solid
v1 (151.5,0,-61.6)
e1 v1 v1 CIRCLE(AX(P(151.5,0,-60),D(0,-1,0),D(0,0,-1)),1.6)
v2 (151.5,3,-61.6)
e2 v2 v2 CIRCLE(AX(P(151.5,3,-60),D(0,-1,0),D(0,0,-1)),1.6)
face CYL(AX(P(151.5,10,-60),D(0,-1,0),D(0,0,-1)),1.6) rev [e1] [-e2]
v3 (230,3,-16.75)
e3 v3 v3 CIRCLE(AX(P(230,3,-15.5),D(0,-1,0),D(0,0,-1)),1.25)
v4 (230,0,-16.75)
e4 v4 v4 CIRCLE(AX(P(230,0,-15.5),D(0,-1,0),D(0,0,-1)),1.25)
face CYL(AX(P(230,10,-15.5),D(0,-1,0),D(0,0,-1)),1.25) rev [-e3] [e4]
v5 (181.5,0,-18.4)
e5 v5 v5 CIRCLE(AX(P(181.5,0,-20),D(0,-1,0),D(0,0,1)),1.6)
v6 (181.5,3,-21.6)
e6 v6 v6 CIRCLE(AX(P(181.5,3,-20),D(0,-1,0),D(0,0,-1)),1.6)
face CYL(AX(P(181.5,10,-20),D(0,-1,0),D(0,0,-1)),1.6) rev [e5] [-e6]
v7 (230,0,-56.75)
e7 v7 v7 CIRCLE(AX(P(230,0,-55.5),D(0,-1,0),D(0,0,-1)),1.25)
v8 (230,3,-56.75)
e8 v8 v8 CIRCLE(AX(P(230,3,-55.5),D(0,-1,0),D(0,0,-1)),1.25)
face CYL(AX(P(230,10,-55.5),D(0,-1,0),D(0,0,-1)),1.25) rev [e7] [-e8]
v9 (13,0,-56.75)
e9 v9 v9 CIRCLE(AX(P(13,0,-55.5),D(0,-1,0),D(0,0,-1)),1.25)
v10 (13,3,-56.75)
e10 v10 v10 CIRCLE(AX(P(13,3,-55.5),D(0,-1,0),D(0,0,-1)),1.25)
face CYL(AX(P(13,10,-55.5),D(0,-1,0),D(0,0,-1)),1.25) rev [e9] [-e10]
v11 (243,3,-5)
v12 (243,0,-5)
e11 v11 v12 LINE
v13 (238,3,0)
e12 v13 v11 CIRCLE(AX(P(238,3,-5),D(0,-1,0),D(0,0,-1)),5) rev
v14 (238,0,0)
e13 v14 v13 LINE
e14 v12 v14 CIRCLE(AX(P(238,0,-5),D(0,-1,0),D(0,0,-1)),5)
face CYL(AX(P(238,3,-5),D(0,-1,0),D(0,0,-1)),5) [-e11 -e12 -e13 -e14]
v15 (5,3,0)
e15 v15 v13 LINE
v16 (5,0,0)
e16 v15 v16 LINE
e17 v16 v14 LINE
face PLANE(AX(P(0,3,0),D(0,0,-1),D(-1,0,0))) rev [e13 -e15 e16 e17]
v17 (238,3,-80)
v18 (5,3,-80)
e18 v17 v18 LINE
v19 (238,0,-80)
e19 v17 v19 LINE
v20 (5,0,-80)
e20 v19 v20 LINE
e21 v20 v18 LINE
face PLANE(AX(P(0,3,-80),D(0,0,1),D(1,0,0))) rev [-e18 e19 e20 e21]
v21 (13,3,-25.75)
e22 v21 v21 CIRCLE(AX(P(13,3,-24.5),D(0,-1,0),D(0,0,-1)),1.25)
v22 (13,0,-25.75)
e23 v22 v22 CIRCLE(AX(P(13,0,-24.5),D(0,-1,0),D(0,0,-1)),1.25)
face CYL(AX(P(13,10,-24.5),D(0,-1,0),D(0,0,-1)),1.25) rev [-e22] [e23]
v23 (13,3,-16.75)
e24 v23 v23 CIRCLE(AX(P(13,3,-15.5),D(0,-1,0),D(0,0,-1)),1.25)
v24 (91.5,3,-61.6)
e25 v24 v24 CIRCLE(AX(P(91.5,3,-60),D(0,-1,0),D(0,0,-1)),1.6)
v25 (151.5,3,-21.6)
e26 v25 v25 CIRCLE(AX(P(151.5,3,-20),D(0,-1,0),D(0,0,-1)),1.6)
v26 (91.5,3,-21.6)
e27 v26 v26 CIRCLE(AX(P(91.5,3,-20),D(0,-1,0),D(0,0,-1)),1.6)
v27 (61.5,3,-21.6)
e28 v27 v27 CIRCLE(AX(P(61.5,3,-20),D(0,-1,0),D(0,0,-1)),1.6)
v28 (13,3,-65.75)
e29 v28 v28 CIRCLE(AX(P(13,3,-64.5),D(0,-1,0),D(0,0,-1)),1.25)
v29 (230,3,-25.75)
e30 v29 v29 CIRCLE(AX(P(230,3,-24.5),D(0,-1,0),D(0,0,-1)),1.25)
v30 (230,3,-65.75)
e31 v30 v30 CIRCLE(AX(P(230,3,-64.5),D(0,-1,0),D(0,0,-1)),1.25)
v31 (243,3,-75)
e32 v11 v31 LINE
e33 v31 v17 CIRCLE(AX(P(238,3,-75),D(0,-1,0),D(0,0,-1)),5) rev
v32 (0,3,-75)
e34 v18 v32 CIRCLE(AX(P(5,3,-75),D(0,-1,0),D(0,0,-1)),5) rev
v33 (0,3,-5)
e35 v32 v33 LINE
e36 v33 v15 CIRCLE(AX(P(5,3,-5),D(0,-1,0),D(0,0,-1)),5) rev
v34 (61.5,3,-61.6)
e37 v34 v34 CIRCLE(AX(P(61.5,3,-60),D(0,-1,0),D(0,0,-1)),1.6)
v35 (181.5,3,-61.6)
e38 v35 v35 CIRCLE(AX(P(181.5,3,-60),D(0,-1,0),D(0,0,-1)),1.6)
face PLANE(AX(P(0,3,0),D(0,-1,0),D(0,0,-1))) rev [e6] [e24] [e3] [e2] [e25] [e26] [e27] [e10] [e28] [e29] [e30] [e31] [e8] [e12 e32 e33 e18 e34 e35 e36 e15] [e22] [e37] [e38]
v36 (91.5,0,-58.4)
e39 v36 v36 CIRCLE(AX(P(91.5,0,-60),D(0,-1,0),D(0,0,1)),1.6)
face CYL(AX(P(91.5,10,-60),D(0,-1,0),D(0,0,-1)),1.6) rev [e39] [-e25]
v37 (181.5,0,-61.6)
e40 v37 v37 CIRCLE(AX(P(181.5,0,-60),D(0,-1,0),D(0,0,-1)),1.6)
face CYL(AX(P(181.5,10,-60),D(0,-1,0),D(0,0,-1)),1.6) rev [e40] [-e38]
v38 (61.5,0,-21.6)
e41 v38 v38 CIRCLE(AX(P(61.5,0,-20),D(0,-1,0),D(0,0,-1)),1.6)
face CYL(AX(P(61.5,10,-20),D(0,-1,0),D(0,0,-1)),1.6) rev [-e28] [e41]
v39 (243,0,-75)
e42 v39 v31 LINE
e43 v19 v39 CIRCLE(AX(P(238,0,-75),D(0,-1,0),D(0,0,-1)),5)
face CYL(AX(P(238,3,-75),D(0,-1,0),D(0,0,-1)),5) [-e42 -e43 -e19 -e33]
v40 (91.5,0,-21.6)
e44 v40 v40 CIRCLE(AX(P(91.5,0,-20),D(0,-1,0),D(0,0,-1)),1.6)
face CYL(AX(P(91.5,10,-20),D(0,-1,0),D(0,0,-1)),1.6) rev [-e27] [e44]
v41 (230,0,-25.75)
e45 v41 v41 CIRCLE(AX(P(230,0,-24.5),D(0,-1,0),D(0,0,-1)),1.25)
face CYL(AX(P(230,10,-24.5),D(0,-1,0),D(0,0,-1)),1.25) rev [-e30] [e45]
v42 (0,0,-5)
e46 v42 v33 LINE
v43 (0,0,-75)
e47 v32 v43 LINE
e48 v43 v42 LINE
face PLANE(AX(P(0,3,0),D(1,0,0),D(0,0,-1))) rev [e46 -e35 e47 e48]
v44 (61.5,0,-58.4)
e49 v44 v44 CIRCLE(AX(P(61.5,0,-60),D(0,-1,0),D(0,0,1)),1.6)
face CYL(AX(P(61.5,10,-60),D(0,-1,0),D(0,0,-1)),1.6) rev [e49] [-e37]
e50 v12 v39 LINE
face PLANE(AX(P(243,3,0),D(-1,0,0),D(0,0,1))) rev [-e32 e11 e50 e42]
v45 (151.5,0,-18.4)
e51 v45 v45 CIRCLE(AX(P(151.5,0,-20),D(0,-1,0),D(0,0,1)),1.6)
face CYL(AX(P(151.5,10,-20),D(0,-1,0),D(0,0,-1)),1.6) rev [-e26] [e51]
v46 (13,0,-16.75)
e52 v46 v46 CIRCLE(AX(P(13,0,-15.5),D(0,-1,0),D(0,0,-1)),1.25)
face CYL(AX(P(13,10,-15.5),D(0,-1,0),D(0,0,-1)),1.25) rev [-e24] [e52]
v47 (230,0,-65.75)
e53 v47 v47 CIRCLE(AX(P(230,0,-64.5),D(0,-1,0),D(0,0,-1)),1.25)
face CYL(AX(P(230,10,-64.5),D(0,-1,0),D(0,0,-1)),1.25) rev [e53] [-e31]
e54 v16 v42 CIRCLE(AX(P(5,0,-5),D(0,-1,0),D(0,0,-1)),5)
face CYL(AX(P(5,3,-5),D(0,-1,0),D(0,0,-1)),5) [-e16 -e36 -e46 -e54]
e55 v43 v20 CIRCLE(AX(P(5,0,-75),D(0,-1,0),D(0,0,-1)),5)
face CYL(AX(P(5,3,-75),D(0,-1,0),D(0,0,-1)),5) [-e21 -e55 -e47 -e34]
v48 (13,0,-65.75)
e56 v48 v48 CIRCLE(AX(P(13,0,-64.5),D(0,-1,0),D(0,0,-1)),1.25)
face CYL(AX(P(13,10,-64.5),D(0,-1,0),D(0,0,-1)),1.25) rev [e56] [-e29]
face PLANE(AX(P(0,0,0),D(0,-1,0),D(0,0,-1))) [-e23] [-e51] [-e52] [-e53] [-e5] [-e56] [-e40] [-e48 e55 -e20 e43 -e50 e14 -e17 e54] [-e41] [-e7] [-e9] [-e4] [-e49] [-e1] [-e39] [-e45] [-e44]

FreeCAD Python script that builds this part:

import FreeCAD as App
import Part
import Sketcher

V = App.Vector
Q = App.Units.Quantity


def edges_at(feature, points):
    """Names of the edges that pass closest to the given points."""
    edges = feature.Shape.Edges
    near = lambda p: min(range(len(edges)), key=lambda i: edges[i].distToShape(Part.Vertex(*p))[0])
    return sorted({f"Edge{near(p) + 1}" for p in points})


def add_polygon(sketch, points):
    """Adds a closed chain of lines whose ends are joined by coincident constraints."""
    first, n = sketch.GeometryCount, len(points)
    for a, b in zip(points, points[1:] + points[:1]):
        sketch.addGeometry(Part.LineSegment(App.Vector(*a, 0), App.Vector(*b, 0)), False)
    for i in range(n):
        sketch.addConstraint(Sketcher.Constraint("Coincident", first + i, 2, first + (i + 1) % n, 1))

doc = App.newDocument("Part")
body = doc.addObject("PartDesign::Body", "Body")

# Sketch on XZ plane
sketch1 = doc.addObject("Sketcher::SketchObject", "Sketch")
body.addObject(sketch1)
sketch1.AttachmentSupport = (doc.XZ_Plane, [""])
sketch1.MapMode = "FlatFace"
add_polygon(sketch1, [(0, -80), (0, 0), (243, 0), (243, -80)])  # lines 0-3
sketch1.addConstraint(Sketcher.Constraint("Vertical", 0))
sketch1.addConstraint(Sketcher.Constraint("Horizontal", 1))
sketch1.addConstraint(Sketcher.Constraint("Vertical", 2))
sketch1.addConstraint(Sketcher.Constraint("Horizontal", 3))
sketch1.addConstraint(Sketcher.Constraint("Coincident", 0, 2, -1, 1))
sketch1.addConstraint(Sketcher.Constraint("DistanceX", 1, 1, 1, 2, Q("243 mm")))
sketch1.addConstraint(Sketcher.Constraint("DistanceY", 0, 1, 0, 2, Q("80 mm")))
pad1 = doc.addObject("PartDesign::Pad", "Pad")
body.addObject(pad1)
pad1.Profile = sketch1
pad1.Length = 3
pad1.Reversed = True

# Sketch on XZ plane
sketch2 = doc.addObject("Sketcher::SketchObject", "Sketch001")
body.addObject(sketch2)
sketch2.AttachmentSupport = (doc.XZ_Plane, [""])
sketch2.MapMode = "FlatFace"
sketch2.addGeometry(Part.Circle(V(13, -64.5, 0), V(0, 0, 1), 1.2), False)
sketch2.addGeometry(Part.Circle(V(13, -55.5, 0), V(0, 0, 1), 1.2), False)
sketch2.addGeometry(Part.Circle(V(13, -24.5, 0), V(0, 0, 1), 1.2), False)
sketch2.addGeometry(Part.Circle(V(13, -15.5, 0), V(0, 0, 1), 1.2), False)
sketch2.addGeometry(Part.Circle(V(230, -55.5, 0), V(0, 0, 1), 1.2), False)
sketch2.addGeometry(Part.Circle(V(230, -64.5, 0), V(0, 0, 1), 1.2), False)
sketch2.addGeometry(Part.Circle(V(230, -24.5, 0), V(0, 0, 1), 1.2), False)
sketch2.addGeometry(Part.Circle(V(230, -15.5, 0), V(0, 0, 1), 1.2), False)
sketch2.addConstraint(Sketcher.Constraint("Equal", 0, 1))
sketch2.addConstraint(Sketcher.Constraint("Equal", 1, 2))
sketch2.addConstraint(Sketcher.Constraint("Equal", 2, 3))
sketch2.addConstraint(Sketcher.Constraint("Equal", 3, 4))
sketch2.addConstraint(Sketcher.Constraint("Equal", 4, 5))
sketch2.addConstraint(Sketcher.Constraint("Equal", 5, 6))
sketch2.addConstraint(Sketcher.Constraint("Equal", 6, 7))
sketch2.addConstraint(Sketcher.Constraint("Horizontal", 1, 3, 4, 3))
sketch2.addConstraint(Sketcher.Constraint("Horizontal", 0, 3, 5, 3))
sketch2.addConstraint(Sketcher.Constraint("Horizontal", 2, 3, 6, 3))
sketch2.addConstraint(Sketcher.Constraint("Horizontal", 3, 3, 7, 3))
sketch2.addConstraint(Sketcher.Constraint("Vertical", 0, 3, 1, 3))
sketch2.addConstraint(Sketcher.Constraint("Vertical", 1, 3, 2, 3))
sketch2.addConstraint(Sketcher.Constraint("Vertical", 2, 3, 3, 3))
sketch2.addConstraint(Sketcher.Constraint("Vertical", 4, 3, 5, 3))
sketch2.addConstraint(Sketcher.Constraint("Vertical", 5, 3, 6, 3))
sketch2.addConstraint(Sketcher.Constraint("Vertical", 6, 3, 7, 3))
sketch2.addConstraint(Sketcher.Constraint("Diameter", 0, Q("2.5 mm")))
sketch2.addConstraint(Sketcher.Constraint("DistanceX", -1, 1, 0, 3, Q("13 mm")))
sketch2.addConstraint(Sketcher.Constraint("DistanceX", -1, 1, 4, 3, Q("230 mm")))
sketch2.addConstraint(Sketcher.Constraint("DistanceY", 0, 3, 1, 3, Q("9 mm")))
sketch2.addConstraint(Sketcher.Constraint("DistanceY", 1, 3, 2, 3, Q("31 mm")))
sketch2.addConstraint(Sketcher.Constraint("DistanceY", 2, 3, 3, 3, Q("9 mm")))
sketch2.addConstraint(Sketcher.Constraint("DistanceY", 0, 3, -1, 1, Q("64.5 mm")))
pocket1 = doc.addObject("PartDesign::Pocket", "Pocket")
body.addObject(pocket1)
pocket1.Profile = sketch2
pocket1.Length = 10
doc.recompute()

fillet = doc.addObject("PartDesign::Fillet", "Fillet")
body.addObject(fillet)
fillet.Base = (pocket1, edges_at(pocket1, [
    (0, 1.5, -80),
    (243, 1.5, -80),
    (243, 1.5, 0),
    (0, 1.5, 0),
]))
fillet.Radius = 5

# Sketch on XZ plane
sketch3 = doc.addObject("Sketcher::SketchObject", "Sketch002")
body.addObject(sketch3)
sketch3.AttachmentSupport = (doc.XZ_Plane, [""])
sketch3.MapMode = "FlatFace"
sketch3.addGeometry(Part.Circle(V(61.5, -20, 0), V(0, 0, 1), 1.6), False)
sketch3.addGeometry(Part.Circle(V(91.5, -20, 0), V(0, 0, 1), 1.6), False)
sketch3.addGeometry(Part.Circle(V(151.5, -20, 0), V(0, 0, 1), 1.6), False)
sketch3.addGeometry(Part.Circle(V(181.5, -20, 0), V(0, 0, 1), 1.6), False)
sketch3.addGeometry(Part.Circle(V(181.5, -60, 0), V(0, 0, 1), 1.6), False)
sketch3.addGeometry(Part.Circle(V(151.5, -60, 0), V(0, 0, 1), 1.6), False)
sketch3.addGeometry(Part.Circle(V(91.5, -60, 0), V(0, 0, 1), 1.6), False)
sketch3.addGeometry(Part.Circle(V(61.5, -60, 0), V(0, 0, 1), 1.6), False)
sketch3.addConstraint(Sketcher.Constraint("Equal", 0, 1))
sketch3.addConstraint(Sketcher.Constraint("Equal", 1, 2))
sketch3.addConstraint(Sketcher.Constraint("Equal", 2, 3))
sketch3.addConstraint(Sketcher.Constraint("Equal", 3, 4))
sketch3.addConstraint(Sketcher.Constraint("Equal", 4, 5))
sketch3.addConstraint(Sketcher.Constraint("Equal", 5, 6))
sketch3.addConstraint(Sketcher.Constraint("Equal", 6, 7))
sketch3.addConstraint(Sketcher.Constraint("Horizontal", 0, 3, 1, 3))
sketch3.addConstraint(Sketcher.Constraint("Horizontal", 1, 3, 2, 3))
sketch3.addConstraint(Sketcher.Constraint("Horizontal", 2, 3, 3, 3))
sketch3.addConstraint(Sketcher.Constraint("Horizontal", 4, 3, 5, 3))
sketch3.addConstraint(Sketcher.Constraint("Horizontal", 5, 3, 6, 3))
sketch3.addConstraint(Sketcher.Constraint("Horizontal", 6, 3, 7, 3))
sketch3.addConstraint(Sketcher.Constraint("Vertical", 3, 3, 4, 3))
sketch3.addConstraint(Sketcher.Constraint("Vertical", 2, 3, 5, 3))
sketch3.addConstraint(Sketcher.Constraint("Vertical", 1, 3, 6, 3))
sketch3.addConstraint(Sketcher.Constraint("Vertical", 0, 3, 7, 3))
sketch3.addConstraint(Sketcher.Constraint("Diameter", 0, Q("3.2 mm")))
sketch3.addConstraint(Sketcher.Constraint("DistanceY", 0, 3, -1, 1, Q("20 mm")))
sketch3.addConstraint(Sketcher.Constraint("DistanceY", 4, 3, -1, 1, Q("60 mm")))
sketch3.addConstraint(Sketcher.Constraint("DistanceX", 0, 3, 1, 3, Q("30 mm")))
sketch3.addConstraint(Sketcher.Constraint("DistanceX", 1, 3, 2, 3, Q("60 mm")))
sketch3.addConstraint(Sketcher.Constraint("DistanceX", 2, 3, 3, 3, Q("30 mm")))
sketch3.addConstraint(Sketcher.Constraint("DistanceX", -1, 1, 0, 3, Q("61.5 mm")))
pocket2 = doc.addObject("PartDesign::Pocket", "Pocket001")
body.addObject(pocket2)
pocket2.Profile = sketch3
pocket2.Length = 10

doc.recompute()
